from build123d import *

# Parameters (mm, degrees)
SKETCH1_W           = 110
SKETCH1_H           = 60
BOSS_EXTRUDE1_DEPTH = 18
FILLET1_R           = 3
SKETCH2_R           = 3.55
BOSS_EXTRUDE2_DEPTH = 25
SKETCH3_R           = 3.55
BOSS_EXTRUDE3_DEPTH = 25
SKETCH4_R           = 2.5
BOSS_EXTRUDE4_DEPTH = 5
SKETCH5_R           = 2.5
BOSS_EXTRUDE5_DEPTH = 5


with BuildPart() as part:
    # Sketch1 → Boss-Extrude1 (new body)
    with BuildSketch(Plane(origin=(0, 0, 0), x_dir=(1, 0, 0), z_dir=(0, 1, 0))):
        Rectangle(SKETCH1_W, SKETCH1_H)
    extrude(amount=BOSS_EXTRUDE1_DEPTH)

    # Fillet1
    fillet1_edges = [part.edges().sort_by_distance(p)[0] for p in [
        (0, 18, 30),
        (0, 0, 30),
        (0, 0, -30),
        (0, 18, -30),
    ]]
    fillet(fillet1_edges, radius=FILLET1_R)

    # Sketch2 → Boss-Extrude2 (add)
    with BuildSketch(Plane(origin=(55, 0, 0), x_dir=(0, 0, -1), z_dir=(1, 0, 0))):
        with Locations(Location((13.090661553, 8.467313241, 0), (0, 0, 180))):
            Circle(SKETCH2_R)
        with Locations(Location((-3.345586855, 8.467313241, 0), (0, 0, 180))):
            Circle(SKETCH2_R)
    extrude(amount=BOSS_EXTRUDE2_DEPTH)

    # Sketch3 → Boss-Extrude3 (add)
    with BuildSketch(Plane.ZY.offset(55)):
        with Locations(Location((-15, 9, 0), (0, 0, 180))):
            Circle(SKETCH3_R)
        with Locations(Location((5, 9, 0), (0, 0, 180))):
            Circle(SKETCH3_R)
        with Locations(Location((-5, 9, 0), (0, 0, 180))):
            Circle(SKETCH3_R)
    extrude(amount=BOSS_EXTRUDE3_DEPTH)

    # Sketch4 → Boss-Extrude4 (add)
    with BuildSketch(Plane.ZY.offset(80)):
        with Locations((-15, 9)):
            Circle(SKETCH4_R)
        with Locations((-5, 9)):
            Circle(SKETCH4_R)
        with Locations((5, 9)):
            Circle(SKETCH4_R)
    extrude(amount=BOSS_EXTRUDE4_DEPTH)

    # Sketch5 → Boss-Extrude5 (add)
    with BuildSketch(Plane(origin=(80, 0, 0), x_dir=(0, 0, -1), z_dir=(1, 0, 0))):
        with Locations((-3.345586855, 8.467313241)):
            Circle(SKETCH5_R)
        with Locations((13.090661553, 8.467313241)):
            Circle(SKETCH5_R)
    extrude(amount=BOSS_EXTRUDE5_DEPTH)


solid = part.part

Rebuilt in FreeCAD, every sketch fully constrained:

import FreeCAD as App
import Part
import Sketcher


def edges_at(feature, points):
    """Names of the edges that pass closest to the given points."""
    edges = feature.Shape.Edges
    near = lambda p: min(range(len(edges)), key=lambda i: edges[i].distToShape(Part.Vertex(*p))[0])
    return sorted({f"Edge{near(p) + 1}" for p in points})

doc = App.newDocument("Part")
body = doc.addObject("PartDesign::Body", "Body")

sketch1 = body.newObject("Sketcher::SketchObject", "Sketch")
sketch1.AttachmentSupport = (doc.getObject("XZ_Plane"), [""])
sketch1.MapMode = "FlatFace"
sketch1.addGeometry(Part.LineSegment(App.Vector(-55, -30, 0), App.Vector(-55, 30, 0)), False)
sketch1.addGeometry(Part.LineSegment(App.Vector(-55, 30, 0), App.Vector(55, 30, 0)), False)
sketch1.addGeometry(Part.LineSegment(App.Vector(55, 30, 0), App.Vector(55, -30, 0)), False)
sketch1.addGeometry(Part.LineSegment(App.Vector(55, -30, 0), App.Vector(-55, -30, 0)), False)
sketch1.addConstraint(Sketcher.Constraint("Coincident", 0, 2, 1, 1))
sketch1.addConstraint(Sketcher.Constraint("Coincident", 1, 2, 2, 1))
sketch1.addConstraint(Sketcher.Constraint("Coincident", 2, 2, 3, 1))
sketch1.addConstraint(Sketcher.Constraint("Coincident", 3, 2, 0, 1))
sketch1.addConstraint(Sketcher.Constraint("Vertical", 0))
sketch1.addConstraint(Sketcher.Constraint("Horizontal", 1))
sketch1.addConstraint(Sketcher.Constraint("Vertical", 2))
sketch1.addConstraint(Sketcher.Constraint("Horizontal", 3))
sketch1.addConstraint(Sketcher.Constraint("Symmetric", 0, 2, 2, 2, -1, 1))
sketch1.addConstraint(Sketcher.Constraint("DistanceX", 1, 1, 1, 2, 110.0))
sketch1.addConstraint(Sketcher.Constraint("DistanceY", 0, 1, 0, 2, 60.0))
pad1 = body.newObject("PartDesign::Pad", "Pad")
pad1.Profile = sketch1
pad1.Length = 18
pad1.Reversed = True
doc.recompute()

fillet = body.newObject("PartDesign::Fillet", "Fillet")
fillet.Base = (pad1, edges_at(pad1, [
    (0, 18, 30),
    (0, 0, 30),
    (0, 0, -30),
    (0, 18, -30),
]))
fillet.Radius = 3

sketch2 = body.newObject("Sketcher::SketchObject", "Sketch001")
sketch2.AttachmentSupport = (doc.getObject("YZ_Plane"), [""])
sketch2.MapMode = "FlatFace"
sketch2.AttachmentOffset = App.Placement(App.Vector(0, 0, 55), App.Rotation())
sketch2.addGeometry(Part.Circle(App.Vector(8.5, -13.1, 0), App.Vector(0, 0, 1), 3.5), False)
sketch2.addGeometry(Part.Circle(App.Vector(8.5, 3.3, 0), App.Vector(0, 0, 1), 3.5), False)
sketch2.addConstraint(Sketcher.Constraint("Equal", 0, 1))
sketch2.addConstraint(Sketcher.Constraint("Vertical", 0, 3, 1, 3))
sketch2.addConstraint(Sketcher.Constraint("Diameter", 0, 7.1))
sketch2.addConstraint(Sketcher.Constraint("DistanceY", 0, 3, -1, 1, 13.090662))
sketch2.addConstraint(Sketcher.Constraint("DistanceY", 0, 3, 1, 3, 16.436248))
sketch2.addConstraint(Sketcher.Constraint("DistanceX", -1, 1, 0, 3, 8.467313))
pad2 = body.newObject("PartDesign::Pad", "Pad001")
pad2.Profile = sketch2
pad2.Length = 25

sketch3 = body.newObject("Sketcher::SketchObject", "Sketch002")
sketch3.AttachmentSupport = (doc.getObject("YZ_Plane"), [""])
sketch3.MapMode = "FlatFace"
sketch3.AttachmentOffset = App.Placement(App.Vector(0, 0, -55), App.Rotation())
sketch3.addGeometry(Part.Circle(App.Vector(9, -15, 0), App.Vector(0, 0, 1), 3.5), False)
sketch3.addGeometry(Part.Circle(App.Vector(9, 5, 0), App.Vector(0, 0, 1), 3.5), False)
sketch3.addGeometry(Part.Circle(App.Vector(9, -5, 0), App.Vector(0, 0, 1), 3.5), False)
sketch3.addConstraint(Sketcher.Constraint("Equal", 0, 1))
sketch3.addConstraint(Sketcher.Constraint("Equal", 1, 2))
sketch3.addConstraint(Sketcher.Constraint("Symmetric", 1, 3, 2, 3, -1))
sketch3.addConstraint(Sketcher.Constraint("Vertical", 0, 3, 1, 3))
sketch3.addConstraint(Sketcher.Constraint("Diameter", 0, 7.1))
sketch3.addConstraint(Sketcher.Constraint("DistanceX", -1, 1, 0, 3, 9.0))
sketch3.addConstraint(Sketcher.Constraint("DistanceY", 0, 3, -1, 1, 15.0))
sketch3.addConstraint(Sketcher.Constraint("DistanceY", -1, 1, 1, 3, 5.0))
pad3 = body.newObject("PartDesign::Pad", "Pad002")
pad3.Profile = sketch3
pad3.Length = 25
pad3.Reversed = True

sketch4 = body.newObject("Sketcher::SketchObject", "Sketch003")
sketch4.AttachmentSupport = (doc.getObject("YZ_Plane"), [""])
sketch4.MapMode = "FlatFace"
sketch4.AttachmentOffset = App.Placement(App.Vector(0, 0, -80), App.Rotation())
sketch4.addGeometry(Part.Circle(App.Vector(9, -15, 0), App.Vector(0, 0, 1), 2.5), False)
sketch4.addGeometry(Part.Circle(App.Vector(9, -5, 0), App.Vector(0, 0, 1), 2.5), False)
sketch4.addGeometry(Part.Circle(App.Vector(9, 5, 0), App.Vector(0, 0, 1), 2.5), False)
sketch4.addConstraint(Sketcher.Constraint("Equal", 0, 1))
sketch4.addConstraint(Sketcher.Constraint("Equal", 1, 2))
sketch4.addConstraint(Sketcher.Constraint("Symmetric", 1, 3, 2, 3, -1))
sketch4.addConstraint(Sketcher.Constraint("Vertical", 0, 3, 1, 3))
sketch4.addConstraint(Sketcher.Constraint("Diameter", 0, 5.0))
sketch4.addConstraint(Sketcher.Constraint("DistanceX", -1, 1, 0, 3, 9.0))
sketch4.addConstraint(Sketcher.Constraint("DistanceY", 0, 3, -1, 1, 15.0))
sketch4.addConstraint(Sketcher.Constraint("DistanceY", 1, 3, -1, 1, 5.0))
pad4 = body.newObject("PartDesign::Pad", "Pad003")
pad4.Profile = sketch4
pad4.Length = 5
pad4.Reversed = True

sketch5 = body.newObject("Sketcher::SketchObject", "Sketch004")
sketch5.AttachmentSupport = (doc.getObject("YZ_Plane"), [""])
sketch5.MapMode = "FlatFace"
sketch5.AttachmentOffset = App.Placement(App.Vector(0, 0, 80), App.Rotation())
sketch5.addGeometry(Part.Circle(App.Vector(8.5, 3.3, 0), App.Vector(0, 0, 1), 2.5), False)
sketch5.addGeometry(Part.Circle(App.Vector(8.5, -13.1, 0), App.Vector(0, 0, 1), 2.5), False)
sketch5.addConstraint(Sketcher.Constraint("Equal", 0, 1))
sketch5.addConstraint(Sketcher.Constraint("Vertical", 0, 3, 1, 3))
sketch5.addConstraint(Sketcher.Constraint("Diameter", 0, 5.0))
sketch5.addConstraint(Sketcher.Constraint("DistanceY", 1, 3, -1, 1, 13.090662))
sketch5.addConstraint(Sketcher.Constraint("DistanceY", 1, 3, 0, 3, 16.436248))
sketch5.addConstraint(Sketcher.Constraint("DistanceX", -1, 1, 0, 3, 8.467313))
pad5 = body.newObject("PartDesign::Pad", "Pad004")
pad5.Profile = sketch5
pad5.Length = 5

doc.recompute()
